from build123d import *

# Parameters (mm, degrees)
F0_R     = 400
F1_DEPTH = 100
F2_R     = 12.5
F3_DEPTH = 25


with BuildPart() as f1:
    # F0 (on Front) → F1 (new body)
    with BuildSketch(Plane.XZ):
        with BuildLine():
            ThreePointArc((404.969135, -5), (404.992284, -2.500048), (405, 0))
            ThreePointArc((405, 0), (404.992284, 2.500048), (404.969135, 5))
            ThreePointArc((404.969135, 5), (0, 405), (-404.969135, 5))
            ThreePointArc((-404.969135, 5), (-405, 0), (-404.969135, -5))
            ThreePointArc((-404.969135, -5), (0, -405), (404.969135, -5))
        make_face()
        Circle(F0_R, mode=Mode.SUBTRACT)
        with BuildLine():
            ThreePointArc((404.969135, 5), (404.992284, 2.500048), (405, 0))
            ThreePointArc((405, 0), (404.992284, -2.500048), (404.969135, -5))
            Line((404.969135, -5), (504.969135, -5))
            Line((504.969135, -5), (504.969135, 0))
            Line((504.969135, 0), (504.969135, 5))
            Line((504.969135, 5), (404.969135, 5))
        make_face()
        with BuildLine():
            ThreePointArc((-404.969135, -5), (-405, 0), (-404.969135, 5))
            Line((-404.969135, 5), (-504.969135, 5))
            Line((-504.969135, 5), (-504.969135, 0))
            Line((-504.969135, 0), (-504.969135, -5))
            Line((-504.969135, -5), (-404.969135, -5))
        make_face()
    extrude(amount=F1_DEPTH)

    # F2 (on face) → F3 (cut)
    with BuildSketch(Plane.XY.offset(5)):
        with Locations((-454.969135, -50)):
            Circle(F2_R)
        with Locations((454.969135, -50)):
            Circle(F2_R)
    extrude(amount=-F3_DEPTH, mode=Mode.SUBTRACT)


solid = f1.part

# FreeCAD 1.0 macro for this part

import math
import FreeCAD as App
import Part
import Sketcher
Q = App.Units.Quantity

doc = App.newDocument("Part")
params = doc.addObject("Spreadsheet::Sheet", "Params")
for row, (alias, value) in enumerate([
    ("sketch1_diameter", "800 mm"),
    ("sketch1_radius", "405 mm"),
    ("sketch1_width", "100 mm"),
    ("sketch1_height", "10 mm"),
    ("pad1_length", "100 mm"),
    ("sketch2_diameter", "25 mm"),
    ("pocket1_length", "25 mm"),
], start=1):
    params.set(f"A{row}", alias)
    params.set(f"B{row}", "=" + value)
    params.setAlias(f"B{row}", alias)

body = doc.addObject("PartDesign::Body", "Body")

# Sketch on XZ plane
sketch1 = body.newObject("Sketcher::SketchObject", "Sketch")
sketch1.AttachmentSupport = (doc.getObject("XZ_Plane"), [""])
sketch1.MapMode = "FlatFace"
sketch1.addGeometry(Part.ArcOfCircle(Part.Circle(App.Vector(0, 0, 0), App.Vector(0, 0, 1), 405), math.radians(-179), math.radians(-1)), False)
sketch1.addGeometry(Part.LineSegment(App.Vector(405, -5, 0), App.Vector(505, -5, 0)), False)
sketch1.addGeometry(Part.LineSegment(App.Vector(505, -5, 0), App.Vector(505, 5, 0)), False)
sketch1.addGeometry(Part.LineSegment(App.Vector(505, 5, 0), App.Vector(405, 5, 0)), False)
sketch1.addGeometry(Part.ArcOfCircle(Part.Circle(App.Vector(0, 0, 0), App.Vector(0, 0, 1), 405), math.radians(1), math.radians(179)), False)
sketch1.addGeometry(Part.LineSegment(App.Vector(-405, 5, 0), App.Vector(-505, 5, 0)), False)
sketch1.addGeometry(Part.LineSegment(App.Vector(-505, 5, 0), App.Vector(-505, -5, 0)), False)
sketch1.addGeometry(Part.LineSegment(App.Vector(-505, -5, 0), App.Vector(-405, -5, 0)), False)
sketch1.addGeometry(Part.Circle(App.Vector(0, 0, 0), App.Vector(0, 0, 1), 400), False)
sketch1.addConstraint(Sketcher.Constraint("Coincident", 0, 2, 1, 1))
sketch1.addConstraint(Sketcher.Constraint("Coincident", 1, 2, 2, 1))
sketch1.addConstraint(Sketcher.Constraint("Coincident", 2, 2, 3, 1))
sketch1.addConstraint(Sketcher.Constraint("Coincident", 3, 2, 4, 1))
sketch1.addConstraint(Sketcher.Constraint("Coincident", 4, 2, 5, 1))
sketch1.addConstraint(Sketcher.Constraint("Coincident", 5, 2, 6, 1))
sketch1.addConstraint(Sketcher.Constraint("Coincident", 6, 2, 7, 1))
sketch1.addConstraint(Sketcher.Constraint("Coincident", 7, 2, 0, 1))
sketch1.addConstraint(Sketcher.Constraint("Horizontal", 1))
sketch1.addConstraint(Sketcher.Constraint("Vertical", 2))
sketch1.addConstraint(Sketcher.Constraint("Horizontal", 3))
sketch1.addConstraint(Sketcher.Constraint("Horizontal", 5))
sketch1.addConstraint(Sketcher.Constraint("Vertical", 6))
sketch1.addConstraint(Sketcher.Constraint("Horizontal", 7))
sketch1.addConstraint(Sketcher.Constraint("Coincident", 0, 3, -1, 1))
sketch1.addConstraint(Sketcher.Constraint("Coincident", 4, 3, -1, 1))
sketch1.addConstraint(Sketcher.Constraint("Coincident", 8, 3, -1, 1))
sketch1.addConstraint(Sketcher.Constraint("Equal", 0, 4))
sketch1.addConstraint(Sketcher.Constraint("Symmetric", 1, 2, 5, 2, -1, 1))
sketch1.addConstraint(Sketcher.Constraint("Horizontal", 1, 2, 6, 2))
sketch1.addConstraint(Sketcher.Constraint("Equal", 1, 3))
sketch1.addConstraint(Sketcher.Constraint("Diameter", 8, Q("800 mm")))
sketch1.addConstraint(Sketcher.Constraint("Radius", 0, Q("405 mm")))
sketch1.addConstraint(Sketcher.Constraint("DistanceX", 1, 1, 1, 2, Q("100 mm")))
sketch1.addConstraint(Sketcher.Constraint("DistanceY", 2, 1, 2, 2, Q("10 mm")))
sketch1.setExpression("Constraints[21]", "Params.sketch1_diameter")
sketch1.setExpression("Constraints[22]", "Params.sketch1_radius")
sketch1.setExpression("Constraints[23]", "Params.sketch1_width")
sketch1.setExpression("Constraints[24]", "Params.sketch1_height")
pad1 = body.newObject("PartDesign::Pad", "Pad")
pad1.Profile = sketch1
pad1.setExpression("Length", "Params.pad1_length")

# Sketch on XY plane
sketch2 = body.newObject("Sketcher::SketchObject", "Sketch001")
sketch2.AttachmentSupport = (doc.getObject("XY_Plane"), [""])
sketch2.MapMode = "FlatFace"
sketch2.AttachmentOffset = App.Placement(App.Vector(0, 0, 5), App.Rotation())
sketch2.addGeometry(Part.Circle(App.Vector(-455, -50, 0), App.Vector(0, 0, 1), 12), False)
sketch2.addGeometry(Part.Circle(App.Vector(455, -50, 0), App.Vector(0, 0, 1), 12), False)
sketch2.addConstraint(Sketcher.Constraint("Equal", 0, 1))
sketch2.addConstraint(Sketcher.Constraint("Symmetric", 0, 3, 1, 3, -2))
sketch2.addConstraint(Sketcher.Constraint("Diameter", 0, Q("25 mm")))
sketch2.addConstraint(Sketcher.Constraint("DistanceY", 0, 3, -1, 1, Q("50 mm")))
sketch2.addConstraint(Sketcher.Constraint("DistanceX", 0, 3, 1, 3, Q("909.93827 mm")))
sketch2.setExpression("Constraints[2]", "Params.sketch2_diameter")
pocket1 = body.newObject("PartDesign::Pocket", "Pocket")
pocket1.Profile = sketch2
pocket1.setExpression("Length", "Params.pocket1_length")

doc.recompute()
